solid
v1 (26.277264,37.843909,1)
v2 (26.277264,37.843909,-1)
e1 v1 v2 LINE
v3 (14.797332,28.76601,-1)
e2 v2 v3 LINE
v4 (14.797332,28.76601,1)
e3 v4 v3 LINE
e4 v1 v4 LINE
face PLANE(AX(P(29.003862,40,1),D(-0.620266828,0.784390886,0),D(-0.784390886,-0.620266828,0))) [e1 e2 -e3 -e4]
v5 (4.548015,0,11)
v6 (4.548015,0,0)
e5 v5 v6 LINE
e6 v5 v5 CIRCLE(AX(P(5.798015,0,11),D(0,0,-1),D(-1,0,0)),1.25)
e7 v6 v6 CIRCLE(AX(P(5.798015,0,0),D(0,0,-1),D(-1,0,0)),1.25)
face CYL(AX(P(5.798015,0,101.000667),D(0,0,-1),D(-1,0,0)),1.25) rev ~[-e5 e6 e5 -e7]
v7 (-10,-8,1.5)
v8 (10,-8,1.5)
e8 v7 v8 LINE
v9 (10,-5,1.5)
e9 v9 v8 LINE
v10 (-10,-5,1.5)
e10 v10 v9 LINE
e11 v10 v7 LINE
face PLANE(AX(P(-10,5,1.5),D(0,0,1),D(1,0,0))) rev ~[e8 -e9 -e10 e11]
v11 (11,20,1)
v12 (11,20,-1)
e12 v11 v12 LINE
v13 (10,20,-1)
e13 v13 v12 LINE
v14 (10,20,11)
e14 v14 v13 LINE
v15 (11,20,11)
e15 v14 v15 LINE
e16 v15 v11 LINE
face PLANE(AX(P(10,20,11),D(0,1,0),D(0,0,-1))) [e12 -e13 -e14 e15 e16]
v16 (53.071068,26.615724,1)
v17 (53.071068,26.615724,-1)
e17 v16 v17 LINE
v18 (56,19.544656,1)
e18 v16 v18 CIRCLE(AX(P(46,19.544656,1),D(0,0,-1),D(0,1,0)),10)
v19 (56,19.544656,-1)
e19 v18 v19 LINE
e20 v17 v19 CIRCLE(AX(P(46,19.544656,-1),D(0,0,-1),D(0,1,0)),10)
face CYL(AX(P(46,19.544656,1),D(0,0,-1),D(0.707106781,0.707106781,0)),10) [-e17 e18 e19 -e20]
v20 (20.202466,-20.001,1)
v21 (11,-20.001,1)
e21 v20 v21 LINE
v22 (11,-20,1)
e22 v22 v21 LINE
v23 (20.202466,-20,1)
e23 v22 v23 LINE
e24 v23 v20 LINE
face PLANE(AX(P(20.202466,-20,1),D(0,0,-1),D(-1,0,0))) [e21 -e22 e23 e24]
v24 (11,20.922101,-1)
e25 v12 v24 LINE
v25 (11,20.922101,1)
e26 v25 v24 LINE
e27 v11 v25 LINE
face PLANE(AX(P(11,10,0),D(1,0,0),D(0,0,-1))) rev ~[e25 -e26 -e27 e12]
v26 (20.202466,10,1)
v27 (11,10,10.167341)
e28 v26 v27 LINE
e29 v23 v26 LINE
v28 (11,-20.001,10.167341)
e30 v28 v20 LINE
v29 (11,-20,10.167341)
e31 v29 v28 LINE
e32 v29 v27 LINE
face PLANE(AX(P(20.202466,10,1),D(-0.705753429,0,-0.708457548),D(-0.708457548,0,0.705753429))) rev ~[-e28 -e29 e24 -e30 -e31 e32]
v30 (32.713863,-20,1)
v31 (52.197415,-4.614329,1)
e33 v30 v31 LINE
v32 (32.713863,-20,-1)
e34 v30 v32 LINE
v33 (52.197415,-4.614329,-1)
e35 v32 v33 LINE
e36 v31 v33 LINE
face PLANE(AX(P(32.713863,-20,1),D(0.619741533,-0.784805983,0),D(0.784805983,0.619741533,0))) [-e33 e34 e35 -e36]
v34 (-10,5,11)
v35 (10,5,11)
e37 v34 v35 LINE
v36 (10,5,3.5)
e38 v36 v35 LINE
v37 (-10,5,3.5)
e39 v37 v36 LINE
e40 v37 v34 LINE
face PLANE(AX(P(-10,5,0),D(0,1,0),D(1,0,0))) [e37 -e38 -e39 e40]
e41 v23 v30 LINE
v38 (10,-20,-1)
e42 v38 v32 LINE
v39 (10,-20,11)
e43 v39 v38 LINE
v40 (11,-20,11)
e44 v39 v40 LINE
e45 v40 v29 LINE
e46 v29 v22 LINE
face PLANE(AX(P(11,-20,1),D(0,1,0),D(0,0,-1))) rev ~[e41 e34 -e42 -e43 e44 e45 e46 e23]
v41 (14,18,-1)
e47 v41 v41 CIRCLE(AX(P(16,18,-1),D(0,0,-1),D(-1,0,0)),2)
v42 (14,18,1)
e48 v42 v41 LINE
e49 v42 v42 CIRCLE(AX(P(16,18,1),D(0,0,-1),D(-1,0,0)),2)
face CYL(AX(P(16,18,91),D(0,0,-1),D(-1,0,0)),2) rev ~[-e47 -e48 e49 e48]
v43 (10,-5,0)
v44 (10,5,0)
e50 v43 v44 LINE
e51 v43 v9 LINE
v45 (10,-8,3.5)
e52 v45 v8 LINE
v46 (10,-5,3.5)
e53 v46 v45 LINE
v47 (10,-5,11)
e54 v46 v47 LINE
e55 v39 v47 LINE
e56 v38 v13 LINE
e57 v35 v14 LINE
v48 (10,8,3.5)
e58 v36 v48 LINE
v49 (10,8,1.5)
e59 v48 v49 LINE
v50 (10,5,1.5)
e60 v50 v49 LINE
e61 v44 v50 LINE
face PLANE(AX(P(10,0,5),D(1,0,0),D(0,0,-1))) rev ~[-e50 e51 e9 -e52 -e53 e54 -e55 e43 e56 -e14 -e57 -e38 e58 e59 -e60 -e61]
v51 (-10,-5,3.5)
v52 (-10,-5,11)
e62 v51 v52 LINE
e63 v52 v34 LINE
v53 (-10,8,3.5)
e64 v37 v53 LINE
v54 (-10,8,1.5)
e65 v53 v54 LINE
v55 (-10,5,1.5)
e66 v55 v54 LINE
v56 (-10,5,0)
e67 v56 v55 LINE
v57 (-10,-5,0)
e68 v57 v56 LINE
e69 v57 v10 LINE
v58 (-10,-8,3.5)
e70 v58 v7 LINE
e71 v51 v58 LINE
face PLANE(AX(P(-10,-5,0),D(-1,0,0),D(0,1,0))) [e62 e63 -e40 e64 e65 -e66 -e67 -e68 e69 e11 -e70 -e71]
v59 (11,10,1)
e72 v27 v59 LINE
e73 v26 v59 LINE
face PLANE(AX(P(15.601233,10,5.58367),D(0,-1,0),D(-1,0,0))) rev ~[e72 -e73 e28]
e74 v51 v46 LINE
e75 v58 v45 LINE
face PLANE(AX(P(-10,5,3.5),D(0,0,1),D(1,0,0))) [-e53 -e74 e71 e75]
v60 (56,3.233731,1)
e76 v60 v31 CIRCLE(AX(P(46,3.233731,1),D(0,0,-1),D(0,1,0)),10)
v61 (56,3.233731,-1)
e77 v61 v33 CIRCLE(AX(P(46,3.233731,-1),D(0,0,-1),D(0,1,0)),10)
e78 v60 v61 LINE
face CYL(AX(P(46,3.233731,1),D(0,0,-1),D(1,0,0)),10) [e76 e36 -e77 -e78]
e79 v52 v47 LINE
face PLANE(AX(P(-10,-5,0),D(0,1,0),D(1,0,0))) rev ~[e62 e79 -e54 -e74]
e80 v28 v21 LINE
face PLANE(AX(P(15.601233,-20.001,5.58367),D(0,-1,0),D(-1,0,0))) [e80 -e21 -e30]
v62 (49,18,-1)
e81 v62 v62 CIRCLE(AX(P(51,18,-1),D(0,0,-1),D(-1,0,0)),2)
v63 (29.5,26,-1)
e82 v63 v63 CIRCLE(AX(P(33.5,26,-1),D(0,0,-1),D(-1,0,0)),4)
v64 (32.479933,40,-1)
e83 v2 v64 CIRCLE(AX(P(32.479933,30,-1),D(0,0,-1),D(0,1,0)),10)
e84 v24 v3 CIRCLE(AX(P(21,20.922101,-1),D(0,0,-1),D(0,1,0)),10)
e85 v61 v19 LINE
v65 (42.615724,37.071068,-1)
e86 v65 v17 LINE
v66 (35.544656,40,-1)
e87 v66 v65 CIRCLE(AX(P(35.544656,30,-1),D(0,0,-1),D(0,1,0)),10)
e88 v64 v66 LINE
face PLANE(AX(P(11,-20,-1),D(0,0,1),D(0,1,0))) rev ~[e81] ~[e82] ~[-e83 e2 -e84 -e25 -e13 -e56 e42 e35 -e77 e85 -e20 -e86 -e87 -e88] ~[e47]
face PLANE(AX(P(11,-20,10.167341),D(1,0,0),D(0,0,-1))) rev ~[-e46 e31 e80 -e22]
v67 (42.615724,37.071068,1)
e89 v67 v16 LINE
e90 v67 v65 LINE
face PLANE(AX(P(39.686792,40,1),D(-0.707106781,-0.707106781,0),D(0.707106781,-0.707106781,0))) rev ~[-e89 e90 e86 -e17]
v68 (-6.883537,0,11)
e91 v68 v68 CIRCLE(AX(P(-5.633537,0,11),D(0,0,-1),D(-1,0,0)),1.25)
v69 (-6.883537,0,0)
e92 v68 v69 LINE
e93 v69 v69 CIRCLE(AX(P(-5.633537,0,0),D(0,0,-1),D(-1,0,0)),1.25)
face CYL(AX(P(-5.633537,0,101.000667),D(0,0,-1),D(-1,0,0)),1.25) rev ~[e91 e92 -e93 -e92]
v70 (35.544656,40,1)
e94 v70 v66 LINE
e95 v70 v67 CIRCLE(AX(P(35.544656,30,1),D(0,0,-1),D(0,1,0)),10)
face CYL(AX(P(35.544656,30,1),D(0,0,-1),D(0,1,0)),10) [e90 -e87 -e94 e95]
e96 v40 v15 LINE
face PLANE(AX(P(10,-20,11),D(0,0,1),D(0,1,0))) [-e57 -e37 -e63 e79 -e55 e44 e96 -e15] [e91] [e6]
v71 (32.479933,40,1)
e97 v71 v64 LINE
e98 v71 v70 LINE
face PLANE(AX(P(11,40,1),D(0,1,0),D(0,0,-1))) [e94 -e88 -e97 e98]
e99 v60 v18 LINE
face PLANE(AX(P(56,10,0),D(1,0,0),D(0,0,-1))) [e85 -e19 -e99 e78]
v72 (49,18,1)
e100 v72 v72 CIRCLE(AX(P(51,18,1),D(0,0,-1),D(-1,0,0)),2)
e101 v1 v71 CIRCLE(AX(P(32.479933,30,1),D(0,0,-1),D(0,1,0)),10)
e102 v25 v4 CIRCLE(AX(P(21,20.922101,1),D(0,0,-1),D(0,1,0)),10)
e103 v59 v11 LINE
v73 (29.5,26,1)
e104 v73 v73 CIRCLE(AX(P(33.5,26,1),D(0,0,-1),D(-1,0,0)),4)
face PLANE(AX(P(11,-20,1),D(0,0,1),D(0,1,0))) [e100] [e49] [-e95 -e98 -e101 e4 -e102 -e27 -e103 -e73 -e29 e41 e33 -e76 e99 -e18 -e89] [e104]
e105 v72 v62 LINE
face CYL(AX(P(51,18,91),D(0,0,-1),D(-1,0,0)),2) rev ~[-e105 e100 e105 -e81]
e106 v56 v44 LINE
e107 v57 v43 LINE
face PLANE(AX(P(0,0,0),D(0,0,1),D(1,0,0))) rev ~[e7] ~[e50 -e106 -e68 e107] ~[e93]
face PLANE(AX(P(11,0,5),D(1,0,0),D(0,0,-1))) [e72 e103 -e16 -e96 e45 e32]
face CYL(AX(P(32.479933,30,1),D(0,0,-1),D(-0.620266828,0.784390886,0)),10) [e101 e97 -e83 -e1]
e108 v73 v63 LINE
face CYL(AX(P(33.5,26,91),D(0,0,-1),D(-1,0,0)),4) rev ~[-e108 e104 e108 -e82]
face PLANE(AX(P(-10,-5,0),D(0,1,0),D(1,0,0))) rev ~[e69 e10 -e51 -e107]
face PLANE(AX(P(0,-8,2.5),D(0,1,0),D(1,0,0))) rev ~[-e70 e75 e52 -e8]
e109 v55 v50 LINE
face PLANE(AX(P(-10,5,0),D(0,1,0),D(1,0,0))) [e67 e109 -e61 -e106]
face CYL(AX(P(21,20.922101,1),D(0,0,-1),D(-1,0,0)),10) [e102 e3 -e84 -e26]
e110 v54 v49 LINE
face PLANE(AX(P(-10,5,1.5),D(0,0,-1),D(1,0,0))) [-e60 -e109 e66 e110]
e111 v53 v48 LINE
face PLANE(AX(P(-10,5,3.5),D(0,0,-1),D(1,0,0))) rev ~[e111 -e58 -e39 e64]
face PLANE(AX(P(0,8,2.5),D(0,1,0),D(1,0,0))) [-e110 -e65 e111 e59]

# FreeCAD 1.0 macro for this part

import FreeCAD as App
import Part
import Sketcher
from FreeCAD import Vector
Q = App.Units.Quantity


def edges_at(feature, points):
    """Names of the edges that pass closest to the given points."""
    edges = feature.Shape.Edges
    near = lambda p: min(range(len(edges)), key=lambda i: edges[i].distToShape(Part.Vertex(*p))[0])
    return sorted({f"Edge{near(p) + 1}" for p in points})

doc = App.newDocument("Part")
body = doc.addObject("PartDesign::Body", "Body")

sketch1 = body.newObject("Sketcher::SketchObject", "Sketch")
sketch1.AttachmentSupport = (doc.getObject("XY_Plane"), [""])
sketch1.MapMode = "FlatFace"
sketch1.addGeometry([
    Part.LineSegment(Vector(-10, 5, 0), Vector(-10, -5, 0)),
    Part.LineSegment(Vector(-10, -5, 0), Vector(10, -5, 0)),
    Part.LineSegment(Vector(10, -5, 0), Vector(10, 5, 0)),
    Part.LineSegment(Vector(10, 5, 0), Vector(-10, 5, 0)),
], False)
sketch1.addConstraint([
    Sketcher.Constraint("Coincident", 0, 2, 1, 1),
    Sketcher.Constraint("Coincident", 1, 2, 2, 1),
    Sketcher.Constraint("Coincident", 2, 2, 3, 1),
    Sketcher.Constraint("Coincident", 3, 2, 0, 1),
    Sketcher.Constraint("Vertical", 0),
    Sketcher.Constraint("Horizontal", 1),
    Sketcher.Constraint("Vertical", 2),
    Sketcher.Constraint("Horizontal", 3),
    Sketcher.Constraint("Symmetric", 0, 2, 2, 2, -1, 1),
    Sketcher.Constraint("DistanceX", 1, 1, 1, 2, Q("20 mm")),
    Sketcher.Constraint("DistanceY", 0, 2, 0, 1, Q("10 mm")),
])
pad1 = body.newObject("PartDesign::Pad", "Pad")
pad1.Profile = sketch1
pad1.Length = 11

sketch2 = body.newObject("Sketcher::SketchObject", "Sketch001")
sketch2.AttachmentSupport = (doc.getObject("XZ_Plane"), [""])
sketch2.MapMode = "FlatFace"
sketch2.AttachmentOffset = App.Placement(Vector(0, 0, -5), App.Rotation())
sketch2.addGeometry([
    Part.LineSegment(Vector(-10, 1.5, 0), Vector(-10, 3.5, 0)),
    Part.LineSegment(Vector(-10, 3.5, 0), Vector(10, 3.5, 0)),
    Part.LineSegment(Vector(10, 3.5, 0), Vector(10, 1.5, 0)),
    Part.LineSegment(Vector(10, 1.5, 0), Vector(-10, 1.5, 0)),
], False)
sketch2.addConstraint([
    Sketcher.Constraint("Coincident", 0, 2, 1, 1),
    Sketcher.Constraint("Coincident", 1, 2, 2, 1),
    Sketcher.Constraint("Coincident", 2, 2, 3, 1),
    Sketcher.Constraint("Coincident", 3, 2, 0, 1),
    Sketcher.Constraint("Vertical", 0),
    Sketcher.Constraint("Horizontal", 1),
    Sketcher.Constraint("Vertical", 2),
    Sketcher.Constraint("Horizontal", 3),
    Sketcher.Constraint("DistanceX", 1, 1, 1, 2, Q("20 mm")),
    Sketcher.Constraint("DistanceY", 0, 1, 0, 2, Q("2 mm")),
    Sketcher.Constraint("DistanceX", 0, 2, -1, 1, Q("10 mm")),
    Sketcher.Constraint("DistanceY", -1, 1, 0, 2, Q("3.5 mm")),
])
pad2 = body.newObject("PartDesign::Pad", "Pad001")
pad2.Profile = sketch2
pad2.Type = "TwoLengths"
pad2.Length = 3
pad2.Length2 = 13
pad2.Reversed = True

sketch3 = body.newObject("Sketcher::SketchObject", "Sketch002")
sketch3.AttachmentSupport = (doc.getObject("YZ_Plane"), [""])
sketch3.MapMode = "FlatFace"
sketch3.AttachmentOffset = App.Placement(Vector(0, 0, 10), App.Rotation())
sketch3.addGeometry([
    Part.LineSegment(Vector(20, 11, 0), Vector(-20, 11, 0)),
    Part.LineSegment(Vector(-20, 11, 0), Vector(-20, -1, 0)),
    Part.LineSegment(Vector(-20, -1, 0), Vector(20, -1, 0)),
    Part.LineSegment(Vector(20, -1, 0), Vector(20, 11, 0)),
], False)
sketch3.addConstraint([
    Sketcher.Constraint("Coincident", 0, 2, 1, 1),
    Sketcher.Constraint("Coincident", 1, 2, 2, 1),
    Sketcher.Constraint("Coincident", 2, 2, 3, 1),
    Sketcher.Constraint("Coincident", 3, 2, 0, 1),
    Sketcher.Constraint("Horizontal", 0),
    Sketcher.Constraint("Vertical", 1),
    Sketcher.Constraint("Horizontal", 2),
    Sketcher.Constraint("Vertical", 3),
    Sketcher.Constraint("DistanceX", 0, 2, 0, 1, Q("40 mm")),
    Sketcher.Constraint("DistanceY", 1, 2, 1, 1, Q("12 mm")),
    Sketcher.Constraint("DistanceX", 0, 2, -1, 1, Q("20 mm")),
    Sketcher.Constraint("DistanceY", -1, 1, 0, 2, Q("11 mm")),
])
pad3 = body.newObject("PartDesign::Pad", "Pad002")
pad3.Profile = sketch3
pad3.Length = 1

sketch4 = body.newObject("Sketcher::SketchObject", "Sketch003")
sketch4.AttachmentSupport = (doc.getObject("YZ_Plane"), [""])
sketch4.MapMode = "FlatFace"
sketch4.AttachmentOffset = App.Placement(Vector(0, 0, 11), App.Rotation())
sketch4.addGeometry([
    Part.LineSegment(Vector(40, 1, 0), Vector(-20, 1, 0)),
    Part.LineSegment(Vector(-20, 1, 0), Vector(-20, -1, 0)),
    Part.LineSegment(Vector(-20, -1, 0), Vector(40, -1, 0)),
    Part.LineSegment(Vector(40, -1, 0), Vector(40, 1, 0)),
], False)
sketch4.addConstraint([
    Sketcher.Constraint("Coincident", 0, 2, 1, 1),
    Sketcher.Constraint("Coincident", 1, 2, 2, 1),
    Sketcher.Constraint("Coincident", 2, 2, 3, 1),
    Sketcher.Constraint("Coincident", 3, 2, 0, 1),
    Sketcher.Constraint("Horizontal", 0),
    Sketcher.Constraint("Vertical", 1),
    Sketcher.Constraint("Horizontal", 2),
    Sketcher.Constraint("Vertical", 3),
    Sketcher.Constraint("DistanceX", 0, 2, 0, 1, Q("60 mm")),
    Sketcher.Constraint("DistanceY", 1, 2, 1, 1, Q("2 mm")),
    Sketcher.Constraint("DistanceX", 0, 2, -1, 1, Q("20 mm")),
    Sketcher.Constraint("DistanceY", -1, 1, 0, 2, Q("1 mm")),
])
pad4 = body.newObject("PartDesign::Pad", "Pad003")
pad4.Profile = sketch4
pad4.Length = 45

sketch5 = body.newObject("Sketcher::SketchObject", "Sketch004")
sketch5.AttachmentSupport = (doc.getObject("XY_Plane"), [""])
sketch5.MapMode = "FlatFace"
sketch5.AttachmentOffset = App.Placement(Vector(0, 0, 1), App.Rotation())
sketch5.addGeometry([
    Part.Circle(Vector(16, 18, 0), Vector(0, 0, 1), 2),
    Part.Circle(Vector(51, 18, 0), Vector(0, 0, 1), 2),
], False)
sketch5.addConstraint([
    Sketcher.Constraint("Equal", 0, 1),
    Sketcher.Constraint("Horizontal", 0, 3, 1, 3),
    Sketcher.Constraint("Diameter", 0, Q("4 mm")),
    Sketcher.Constraint("DistanceX", -1, 1, 0, 3, Q("16 mm")),
    Sketcher.Constraint("DistanceY", -1, 1, 0, 3, Q("18 mm")),
    Sketcher.Constraint("DistanceX", -1, 1, 1, 3, Q("51 mm")),
])
doc.recompute()
hole = body.newObject("PartDesign::Hole", "Hole")
hole.Profile = sketch5
hole.ThreadType = "None"
hole.Diameter = 4
hole.DepthType = "ThroughAll"

sketch6 = body.newObject("Sketcher::SketchObject", "Sketch005")
sketch6.AttachmentSupport = (doc.getObject("XY_Plane"), [""])
sketch6.MapMode = "FlatFace"
sketch6.AttachmentOffset = App.Placement(Vector(0, 0, 1), App.Rotation())
sketch6.addGeometry(Part.Circle(Vector(33.5, 26, 0), Vector(0, 0, 1), 4), False)
sketch6.addConstraint([
    Sketcher.Constraint("Diameter", 0, Q("8 mm")),
    Sketcher.Constraint("DistanceY", -1, 1, 0, 3, Q("26 mm")),
    Sketcher.Constraint("DistanceX", -1, 1, 0, 3, Q("33.5 mm")),
])
doc.recompute()
hole2 = body.newObject("PartDesign::Hole", "Hole001")
hole2.Profile = sketch6
hole2.ThreadType = "None"
hole2.Diameter = 8
hole2.DepthType = "ThroughAll"

sketch7 = body.newObject("Sketcher::SketchObject", "Sketch006")
sketch7.AttachmentSupport = (doc.getObject("XZ_Plane"), [""])
sketch7.MapMode = "FlatFace"
sketch7.AttachmentOffset = App.Placement(Vector(0, 0, 20), App.Rotation())
sketch7.addGeometry([
    Part.LineSegment(Vector(20.202466, 1, 0), Vector(20.202466, 10.167341, 0)),
    Part.LineSegment(Vector(20.202466, 10.167341, 0), Vector(11, 10.167341, 0)),
    Part.LineSegment(Vector(11, 10.167341, 0), Vector(11, 1, 0)),
    Part.LineSegment(Vector(11, 1, 0), Vector(20.202466, 1, 0)),
], False)
sketch7.addConstraint([
    Sketcher.Constraint("Coincident", 0, 2, 1, 1),
    Sketcher.Constraint("Coincident", 1, 2, 2, 1),
    Sketcher.Constraint("Coincident", 2, 2, 3, 1),
    Sketcher.Constraint("Coincident", 3, 2, 0, 1),
    Sketcher.Constraint("Vertical", 0),
    Sketcher.Constraint("Horizontal", 1),
    Sketcher.Constraint("Vertical", 2),
    Sketcher.Constraint("Horizontal", 3),
    Sketcher.Constraint("DistanceX", -1, 1, 1, 2, Q("11 mm")),
    Sketcher.Constraint("DistanceY", -1, 1, 2, 2, Q("1 mm")),
    Sketcher.Constraint("DistanceY", 0, 1, 0, 2, Q("9.167341 mm")),
    Sketcher.Constraint("DistanceX", 1, 2, 1, 1, Q("9.202466 mm")),
])
pad5 = body.newObject("PartDesign::Pad", "Pad004")
pad5.Profile = sketch7
pad5.Type = "TwoLengths"
pad5.Length = 0.001
pad5.Length2 = 30

sketch8 = body.newObject("Sketcher::SketchObject", "Sketch007")
sketch8.AttachmentSupport = (doc.getObject("XZ_Plane"), [""])
sketch8.MapMode = "FlatFace"
sketch8.AttachmentOffset = App.Placement(Vector(0, 0, -10), App.Rotation())
sketch8.addGeometry([
    Part.LineSegment(Vector(20.202466, 1, 0), Vector(11, 10.167341, 0)),
    Part.LineSegment(Vector(11, 10.167341, 0), Vector(20.202466, 10.167341, 0)),
    Part.LineSegment(Vector(20.202466, 10.167341, 0), Vector(20.202466, 1, 0)),
], False)
sketch8.addConstraint([
    Sketcher.Constraint("Coincident", 0, 2, 1, 1),
    Sketcher.Constraint("Coincident", 1, 2, 2, 1),
    Sketcher.Constraint("Coincident", 2, 2, 0, 1),
    Sketcher.Constraint("Horizontal", 1),
    Sketcher.Constraint("Vertical", 2),
    Sketcher.Constraint("DistanceX", -1, 1, 0, 2, Q("11 mm")),
    Sketcher.Constraint("DistanceY", -1, 1, 2, 2, Q("1 mm")),
    Sketcher.Constraint("DistanceY", 2, 2, 2, 1, Q("9.167341 mm")),
    Sketcher.Constraint("Distance", 0, Q("12.989439 mm")),
])
pocket1 = body.newObject("PartDesign::Pocket", "Pocket")
pocket1.Profile = sketch8
pocket1.Length = 31
pocket1.Reversed = True

sketch9 = body.newObject("Sketcher::SketchObject", "Sketch008")
sketch9.AttachmentSupport = (doc.getObject("XY_Plane"), [""])
sketch9.MapMode = "FlatFace"
sketch9.AttachmentOffset = App.Placement(Vector(0, 0, 11), App.Rotation())
sketch9.addGeometry([
    Part.Circle(Vector(-5.633537, 0, 0), Vector(0, 0, 1), 1.25),
    Part.Circle(Vector(5.798015, 0, 0), Vector(0, 0, 1), 1.25),
], False)
sketch9.addConstraint([
    Sketcher.Constraint("Equal", 0, 1),
    Sketcher.Constraint("PointOnObject", 0, 3, -1),
    Sketcher.Constraint("PointOnObject", 1, 3, -1),
    Sketcher.Constraint("Diameter", 0, Q("2.5 mm")),
    Sketcher.Constraint("DistanceX", 0, 3, 1, 3, Q("11.431551 mm")),
    Sketcher.Constraint("DistanceX", 0, 3, -1, 1, Q("5.633537 mm")),
])
doc.recompute()
hole3 = body.newObject("PartDesign::Hole", "Hole002")
hole3.Profile = sketch9
hole3.ThreadType = "None"
hole3.Diameter = 2.5
hole3.DepthType = "ThroughAll"

sketch10 = body.newObject("Sketcher::SketchObject", "Sketch009")
sketch10.AttachmentSupport = (doc.getObject("XY_Plane"), [""])
sketch10.MapMode = "FlatFace"
sketch10.AttachmentOffset = App.Placement(Vector(0, 0, 1), App.Rotation())
sketch10.addGeometry([
    Part.LineSegment(Vector(11, 25.763222, 0), Vector(29.003862, 40, 0)),
    Part.LineSegment(Vector(29.003862, 40, 0), Vector(11, 40, 0)),
    Part.LineSegment(Vector(11, 40, 0), Vector(11, 25.763222, 0)),
    Part.LineSegment(Vector(56, 40, 0), Vector(39.686792, 40, 0)),
    Part.LineSegment(Vector(39.686792, 40, 0), Vector(56, 23.686792, 0)),
    Part.LineSegment(Vector(56, 23.686792, 0), Vector(56, 40, 0)),
], False)
sketch10.addConstraint([
    Sketcher.Constraint("Coincident", 0, 2, 1, 1),
    Sketcher.Constraint("Coincident", 1, 2, 2, 1),
    Sketcher.Constraint("Coincident", 2, 2, 0, 1),
    Sketcher.Constraint("Coincident", 3, 2, 4, 1),
    Sketcher.Constraint("Coincident", 4, 2, 5, 1),
    Sketcher.Constraint("Coincident", 5, 2, 3, 1),
    Sketcher.Constraint("Horizontal", 1),
    Sketcher.Constraint("Vertical", 2),
    Sketcher.Constraint("Horizontal", 3),
    Sketcher.Constraint("Vertical", 5),
    Sketcher.Constraint("Horizontal", 1, 2, 3, 2),
    Sketcher.Constraint("Equal", 3, 5),
    Sketcher.Constraint("DistanceY", -1, 1, 0, 2, Q("40 mm")),
    Sketcher.Constraint("DistanceX", -1, 1, 1, 2, Q("11 mm")),
    Sketcher.Constraint("DistanceX", -1, 1, 4, 2, Q("56 mm")),
    Sketcher.Constraint("DistanceX", 3, 2, 3, 1, Q("16.313208 mm")),
    Sketcher.Constraint("DistanceX", 1, 2, 1, 1, Q("18.003862 mm")),
    Sketcher.Constraint("DistanceY", 2, 2, 2, 1, Q("14.236778 mm")),
])
pocket2 = body.newObject("PartDesign::Pocket", "Pocket001")
pocket2.Profile = sketch10
pocket2.Length = 10

sketch11 = body.newObject("Sketcher::SketchObject", "Sketch010")
sketch11.AttachmentSupport = (doc.getObject("XY_Plane"), [""])
sketch11.MapMode = "FlatFace"
sketch11.AttachmentOffset = App.Placement(Vector(0, 0, 1), App.Rotation())
sketch11.addGeometry([
    Part.LineSegment(Vector(56, -1.611524, 0), Vector(32.713863, -20, 0)),
    Part.LineSegment(Vector(32.713863, -20, 0), Vector(56, -20, 0)),
    Part.LineSegment(Vector(56, -20, 0), Vector(56, -1.611524, 0)),
], False)
sketch11.addConstraint([
    Sketcher.Constraint("Coincident", 0, 2, 1, 1),
    Sketcher.Constraint("Coincident", 1, 2, 2, 1),
    Sketcher.Constraint("Coincident", 2, 2, 0, 1),
    Sketcher.Constraint("Horizontal", 1),
    Sketcher.Constraint("Vertical", 2),
    Sketcher.Constraint("DistanceY", 0, 2, -1, 1, Q("20 mm")),
    Sketcher.Constraint("DistanceX", -1, 1, 1, 2, Q("56 mm")),
    Sketcher.Constraint("DistanceX", 1, 1, 1, 2, Q("23.286137 mm")),
    Sketcher.Constraint("DistanceY", 2, 1, 2, 2, Q("18.388476 mm")),
])
pocket3 = body.newObject("PartDesign::Pocket", "Pocket002")
pocket3.Profile = sketch11
pocket3.Length = 10
doc.recompute()

fillet = body.newObject("PartDesign::Fillet", "Fillet")
fillet.Base = (pocket3, edges_at(pocket3, [
    (29.004, 40, 0),
    (11, 25.763, 0),
    (56, 23.687, 0),
    (39.687, 40, 0),
    (56, -1.612, 0),
]))
fillet.Radius = 10

doc.recompute()
